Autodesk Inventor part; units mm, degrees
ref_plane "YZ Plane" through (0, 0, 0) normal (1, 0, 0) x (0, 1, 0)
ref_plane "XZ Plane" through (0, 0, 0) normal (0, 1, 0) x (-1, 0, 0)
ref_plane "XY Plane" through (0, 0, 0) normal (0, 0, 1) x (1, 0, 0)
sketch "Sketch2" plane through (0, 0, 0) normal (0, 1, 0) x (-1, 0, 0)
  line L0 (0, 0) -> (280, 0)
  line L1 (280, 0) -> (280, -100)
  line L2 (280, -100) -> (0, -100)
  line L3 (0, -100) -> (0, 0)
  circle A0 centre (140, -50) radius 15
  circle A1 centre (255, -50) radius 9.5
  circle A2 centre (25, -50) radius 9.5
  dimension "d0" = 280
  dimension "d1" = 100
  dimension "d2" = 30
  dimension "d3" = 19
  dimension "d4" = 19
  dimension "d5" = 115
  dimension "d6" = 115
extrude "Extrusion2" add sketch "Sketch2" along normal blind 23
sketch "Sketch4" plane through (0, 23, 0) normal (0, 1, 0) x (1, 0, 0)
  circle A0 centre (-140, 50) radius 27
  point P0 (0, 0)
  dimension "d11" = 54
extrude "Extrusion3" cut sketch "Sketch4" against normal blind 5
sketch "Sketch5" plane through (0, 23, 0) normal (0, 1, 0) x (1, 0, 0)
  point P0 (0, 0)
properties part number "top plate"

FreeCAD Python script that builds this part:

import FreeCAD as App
import Part
import Sketcher
Q = App.Units.Quantity

doc = App.newDocument("Part")
body = doc.addObject("PartDesign::Body", "Body")

# Sketch on XZ plane
sketch1 = body.newObject("Sketcher::SketchObject", "Sketch")
sketch1.AttachmentSupport = (doc.getObject("XZ_Plane"), [""])
sketch1.MapMode = "FlatFace"
sketch1.addGeometry([
    Part.LineSegment(App.Vector(-280, 0, 0), App.Vector(0, 0, 0)),  # 0
    Part.LineSegment(App.Vector(0, 0, 0), App.Vector(0, -100, 0)),  # 1
    Part.LineSegment(App.Vector(0, -100, 0), App.Vector(-280, -100, 0)),  # 2
    Part.LineSegment(App.Vector(-280, -100, 0), App.Vector(-280, 0, 0)),  # 3
    Part.Circle(App.Vector(-25, -50, 0), App.Vector(0, 0, 1), 10),  # 4
    Part.Circle(App.Vector(-140, -50, 0), App.Vector(0, 0, 1), 15),  # 5
    Part.Circle(App.Vector(-255, -50, 0), App.Vector(0, 0, 1), 10),  # 6
], False)
sketch1.addConstraint([
    Sketcher.Constraint("Coincident", 0, 2, 1, 1),
    Sketcher.Constraint("Coincident", 1, 2, 2, 1),
    Sketcher.Constraint("Coincident", 2, 2, 3, 1),
    Sketcher.Constraint("Coincident", 3, 2, 0, 1),
    Sketcher.Constraint("Horizontal", 0),
    Sketcher.Constraint("Vertical", 1),
    Sketcher.Constraint("Horizontal", 2),
    Sketcher.Constraint("Vertical", 3),
    Sketcher.Constraint("Coincident", 0, 2, -1, 1),
    Sketcher.Constraint("Equal", 4, 6),
    Sketcher.Constraint("Horizontal", 4, 3, 5, 3),
    Sketcher.Constraint("Horizontal", 5, 3, 6, 3),
    Sketcher.Constraint("Diameter", 4, Q("19 mm")),
    Sketcher.Constraint("Diameter", 5, Q("30 mm")),
    Sketcher.Constraint("DistanceX", 0, 1, 0, 2, Q("280 mm")),
    Sketcher.Constraint("DistanceY", 1, 2, 1, 1, Q("100 mm")),
    Sketcher.Constraint("DistanceX", 5, 3, 4, 3, Q("115 mm")),
    Sketcher.Constraint("DistanceX", 6, 3, 5, 3, Q("115 mm")),
    Sketcher.Constraint("DistanceX", 4, 3, -1, 1, Q("25 mm")),
    Sketcher.Constraint("DistanceY", 4, 3, -1, 1, Q("50 mm")),
])
pad1 = body.newObject("PartDesign::Pad", "Pad")
pad1.Profile = sketch1
pad1.Length = 23
pad1.Reversed = True

# Sketch on XZ plane
sketch2 = body.newObject("Sketcher::SketchObject", "Sketch001")
sketch2.AttachmentSupport = (doc.getObject("XZ_Plane"), [""])
sketch2.MapMode = "FlatFace"
sketch2.AttachmentOffset = App.Placement(App.Vector(0, 0, -23), App.Rotation())
sketch2.addGeometry(Part.Circle(App.Vector(-140, -50, 0), App.Vector(0, 0, 1), 27), False)
sketch2.addConstraint([
    Sketcher.Constraint("Diameter", 0, Q("54 mm")),
    Sketcher.Constraint("DistanceX", 0, 3, -1, 1, Q("140 mm")),
    Sketcher.Constraint("DistanceY", 0, 3, -1, 1, Q("50 mm")),
])
pocket1 = body.newObject("PartDesign::Pocket", "Pocket")
pocket1.Profile = sketch2
pocket1.Length = 5
pocket1.Reversed = True

doc.recompute()
